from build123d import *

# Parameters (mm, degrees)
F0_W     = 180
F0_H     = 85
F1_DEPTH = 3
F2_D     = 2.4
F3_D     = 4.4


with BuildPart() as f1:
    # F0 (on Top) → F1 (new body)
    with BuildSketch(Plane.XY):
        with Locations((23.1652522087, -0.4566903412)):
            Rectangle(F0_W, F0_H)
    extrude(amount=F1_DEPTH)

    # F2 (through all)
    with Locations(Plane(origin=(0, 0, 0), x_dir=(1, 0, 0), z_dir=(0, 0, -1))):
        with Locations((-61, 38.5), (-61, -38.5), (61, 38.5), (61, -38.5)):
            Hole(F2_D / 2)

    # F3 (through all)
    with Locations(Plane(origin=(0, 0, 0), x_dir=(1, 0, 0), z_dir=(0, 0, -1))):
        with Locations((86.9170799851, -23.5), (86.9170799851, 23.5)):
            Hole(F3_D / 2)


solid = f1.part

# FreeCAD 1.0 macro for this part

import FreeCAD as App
import Part
import Sketcher

V = App.Vector
Q = App.Units.Quantity

doc = App.newDocument("Part")
params = doc.addObject("Spreadsheet::Sheet", "Params")
for row, (alias, value) in enumerate([
    ("sketch1_width", "180 mm"),
    ("sketch1_height", "85 mm"),
    ("pad1_length", "3 mm"),
    ("sketch2_diameter", "2.4 mm"),
    ("hole_diameter", "2.4 mm"),
    ("sketch3_diameter", "4.4 mm"),
    ("hole2_diameter", "4.4 mm"),
], start=1):
    params.set(f"A{row}", alias)
    params.set(f"B{row}", "=" + value)
    params.setAlias(f"B{row}", alias)

body = doc.addObject("PartDesign::Body", "Body")

# Sketch on XY plane
sketch1 = body.newObject("Sketcher::SketchObject", "Sketch")
sketch1.AttachmentSupport = (doc.getObject("XY_Plane"), [""])
sketch1.MapMode = "FlatFace"
sketch1.addGeometry(Part.LineSegment(V(-66.834748, 42.04331, 0), V(-66.834748, -42.95669, 0)), False)
sketch1.addGeometry(Part.LineSegment(V(-66.834748, -42.95669, 0), V(113.165252, -42.95669, 0)), False)
sketch1.addGeometry(Part.LineSegment(V(113.165252, -42.95669, 0), V(113.165252, 42.04331, 0)), False)
sketch1.addGeometry(Part.LineSegment(V(113.165252, 42.04331, 0), V(-66.834748, 42.04331, 0)), False)
sketch1.addConstraint(Sketcher.Constraint("Coincident", 0, 2, 1, 1))
sketch1.addConstraint(Sketcher.Constraint("Coincident", 1, 2, 2, 1))
sketch1.addConstraint(Sketcher.Constraint("Coincident", 2, 2, 3, 1))
sketch1.addConstraint(Sketcher.Constraint("Coincident", 3, 2, 0, 1))
sketch1.addConstraint(Sketcher.Constraint("Vertical", 0))
sketch1.addConstraint(Sketcher.Constraint("Horizontal", 1))
sketch1.addConstraint(Sketcher.Constraint("Vertical", 2))
sketch1.addConstraint(Sketcher.Constraint("Horizontal", 3))
sketch1.addConstraint(Sketcher.Constraint("DistanceX", 1, 1, 1, 2, Q("180 mm")))
sketch1.addConstraint(Sketcher.Constraint("DistanceY", 0, 2, 0, 1, Q("85 mm")))
sketch1.addConstraint(Sketcher.Constraint("DistanceY", 0, 2, -1, 1, Q("42.95669 mm")))
sketch1.addConstraint(Sketcher.Constraint("DistanceX", 0, 2, -1, 1, Q("66.834748 mm")))
sketch1.setExpression("Constraints[8]", "Params.sketch1_width")
sketch1.setExpression("Constraints[9]", "Params.sketch1_height")
pad1 = body.newObject("PartDesign::Pad", "Pad")
pad1.Profile = sketch1
pad1.setExpression("Length", "Params.pad1_length")

# Sketch on XY plane
sketch2 = body.newObject("Sketcher::SketchObject", "Sketch001")
sketch2.AttachmentSupport = (doc.getObject("XY_Plane"), [""])
sketch2.MapMode = "FlatFace"
sketch2.addGeometry(Part.Circle(V(-61, -38.5, 0), V(0, 0, 1), 1.2), False)
sketch2.addGeometry(Part.Circle(V(-61, 38.5, 0), V(0, 0, 1), 1.2), False)
sketch2.addGeometry(Part.Circle(V(61, -38.5, 0), V(0, 0, 1), 1.2), False)
sketch2.addGeometry(Part.Circle(V(61, 38.5, 0), V(0, 0, 1), 1.2), False)
sketch2.addConstraint(Sketcher.Constraint("Equal", 0, 1))
sketch2.addConstraint(Sketcher.Constraint("Equal", 1, 2))
sketch2.addConstraint(Sketcher.Constraint("Equal", 2, 3))
sketch2.addConstraint(Sketcher.Constraint("Symmetric", 1, 3, 2, 3, -1, 1))
sketch2.addConstraint(Sketcher.Constraint("Symmetric", 0, 3, 3, 3, -1, 1))
sketch2.addConstraint(Sketcher.Constraint("Symmetric", 0, 3, 2, 3, -2))
sketch2.addConstraint(Sketcher.Constraint("Diameter", 0, Q("2.4 mm")))
sketch2.addConstraint(Sketcher.Constraint("DistanceX", 0, 3, -1, 1, Q("61 mm")))
sketch2.addConstraint(Sketcher.Constraint("DistanceY", 0, 3, 1, 3, Q("77 mm")))
sketch2.setExpression("Constraints[6]", "Params.sketch2_diameter")
doc.recompute()
hole = body.newObject("PartDesign::Hole", "Hole")
hole.Profile = sketch2
hole.ThreadType = "None"
hole.setExpression("Diameter", "Params.hole_diameter")
hole.DepthType = "ThroughAll"
hole.Reversed = True

# Sketch on XY plane
sketch3 = body.newObject("Sketcher::SketchObject", "Sketch002")
sketch3.AttachmentSupport = (doc.getObject("XY_Plane"), [""])
sketch3.MapMode = "FlatFace"
sketch3.addGeometry(Part.Circle(V(86.91708, 23.5, 0), V(0, 0, 1), 2.2), False)
sketch3.addGeometry(Part.Circle(V(86.91708, -23.5, 0), V(0, 0, 1), 2.2), False)
sketch3.addConstraint(Sketcher.Constraint("Equal", 0, 1))
sketch3.addConstraint(Sketcher.Constraint("Symmetric", 0, 3, 1, 3, -1))
sketch3.addConstraint(Sketcher.Constraint("Diameter", 0, Q("4.4 mm")))
sketch3.addConstraint(Sketcher.Constraint("DistanceY", 1, 3, 0, 3, Q("47 mm")))
sketch3.addConstraint(Sketcher.Constraint("DistanceX", -1, 1, 0, 3, Q("86.91708 mm")))
sketch3.setExpression("Constraints[2]", "Params.sketch3_diameter")
doc.recompute()
hole2 = body.newObject("PartDesign::Hole", "Hole001")
hole2.Profile = sketch3
hole2.ThreadType = "None"
hole2.setExpression("Diameter", "Params.hole2_diameter")
hole2.DepthType = "ThroughAll"
hole2.Reversed = True

doc.recompute()
